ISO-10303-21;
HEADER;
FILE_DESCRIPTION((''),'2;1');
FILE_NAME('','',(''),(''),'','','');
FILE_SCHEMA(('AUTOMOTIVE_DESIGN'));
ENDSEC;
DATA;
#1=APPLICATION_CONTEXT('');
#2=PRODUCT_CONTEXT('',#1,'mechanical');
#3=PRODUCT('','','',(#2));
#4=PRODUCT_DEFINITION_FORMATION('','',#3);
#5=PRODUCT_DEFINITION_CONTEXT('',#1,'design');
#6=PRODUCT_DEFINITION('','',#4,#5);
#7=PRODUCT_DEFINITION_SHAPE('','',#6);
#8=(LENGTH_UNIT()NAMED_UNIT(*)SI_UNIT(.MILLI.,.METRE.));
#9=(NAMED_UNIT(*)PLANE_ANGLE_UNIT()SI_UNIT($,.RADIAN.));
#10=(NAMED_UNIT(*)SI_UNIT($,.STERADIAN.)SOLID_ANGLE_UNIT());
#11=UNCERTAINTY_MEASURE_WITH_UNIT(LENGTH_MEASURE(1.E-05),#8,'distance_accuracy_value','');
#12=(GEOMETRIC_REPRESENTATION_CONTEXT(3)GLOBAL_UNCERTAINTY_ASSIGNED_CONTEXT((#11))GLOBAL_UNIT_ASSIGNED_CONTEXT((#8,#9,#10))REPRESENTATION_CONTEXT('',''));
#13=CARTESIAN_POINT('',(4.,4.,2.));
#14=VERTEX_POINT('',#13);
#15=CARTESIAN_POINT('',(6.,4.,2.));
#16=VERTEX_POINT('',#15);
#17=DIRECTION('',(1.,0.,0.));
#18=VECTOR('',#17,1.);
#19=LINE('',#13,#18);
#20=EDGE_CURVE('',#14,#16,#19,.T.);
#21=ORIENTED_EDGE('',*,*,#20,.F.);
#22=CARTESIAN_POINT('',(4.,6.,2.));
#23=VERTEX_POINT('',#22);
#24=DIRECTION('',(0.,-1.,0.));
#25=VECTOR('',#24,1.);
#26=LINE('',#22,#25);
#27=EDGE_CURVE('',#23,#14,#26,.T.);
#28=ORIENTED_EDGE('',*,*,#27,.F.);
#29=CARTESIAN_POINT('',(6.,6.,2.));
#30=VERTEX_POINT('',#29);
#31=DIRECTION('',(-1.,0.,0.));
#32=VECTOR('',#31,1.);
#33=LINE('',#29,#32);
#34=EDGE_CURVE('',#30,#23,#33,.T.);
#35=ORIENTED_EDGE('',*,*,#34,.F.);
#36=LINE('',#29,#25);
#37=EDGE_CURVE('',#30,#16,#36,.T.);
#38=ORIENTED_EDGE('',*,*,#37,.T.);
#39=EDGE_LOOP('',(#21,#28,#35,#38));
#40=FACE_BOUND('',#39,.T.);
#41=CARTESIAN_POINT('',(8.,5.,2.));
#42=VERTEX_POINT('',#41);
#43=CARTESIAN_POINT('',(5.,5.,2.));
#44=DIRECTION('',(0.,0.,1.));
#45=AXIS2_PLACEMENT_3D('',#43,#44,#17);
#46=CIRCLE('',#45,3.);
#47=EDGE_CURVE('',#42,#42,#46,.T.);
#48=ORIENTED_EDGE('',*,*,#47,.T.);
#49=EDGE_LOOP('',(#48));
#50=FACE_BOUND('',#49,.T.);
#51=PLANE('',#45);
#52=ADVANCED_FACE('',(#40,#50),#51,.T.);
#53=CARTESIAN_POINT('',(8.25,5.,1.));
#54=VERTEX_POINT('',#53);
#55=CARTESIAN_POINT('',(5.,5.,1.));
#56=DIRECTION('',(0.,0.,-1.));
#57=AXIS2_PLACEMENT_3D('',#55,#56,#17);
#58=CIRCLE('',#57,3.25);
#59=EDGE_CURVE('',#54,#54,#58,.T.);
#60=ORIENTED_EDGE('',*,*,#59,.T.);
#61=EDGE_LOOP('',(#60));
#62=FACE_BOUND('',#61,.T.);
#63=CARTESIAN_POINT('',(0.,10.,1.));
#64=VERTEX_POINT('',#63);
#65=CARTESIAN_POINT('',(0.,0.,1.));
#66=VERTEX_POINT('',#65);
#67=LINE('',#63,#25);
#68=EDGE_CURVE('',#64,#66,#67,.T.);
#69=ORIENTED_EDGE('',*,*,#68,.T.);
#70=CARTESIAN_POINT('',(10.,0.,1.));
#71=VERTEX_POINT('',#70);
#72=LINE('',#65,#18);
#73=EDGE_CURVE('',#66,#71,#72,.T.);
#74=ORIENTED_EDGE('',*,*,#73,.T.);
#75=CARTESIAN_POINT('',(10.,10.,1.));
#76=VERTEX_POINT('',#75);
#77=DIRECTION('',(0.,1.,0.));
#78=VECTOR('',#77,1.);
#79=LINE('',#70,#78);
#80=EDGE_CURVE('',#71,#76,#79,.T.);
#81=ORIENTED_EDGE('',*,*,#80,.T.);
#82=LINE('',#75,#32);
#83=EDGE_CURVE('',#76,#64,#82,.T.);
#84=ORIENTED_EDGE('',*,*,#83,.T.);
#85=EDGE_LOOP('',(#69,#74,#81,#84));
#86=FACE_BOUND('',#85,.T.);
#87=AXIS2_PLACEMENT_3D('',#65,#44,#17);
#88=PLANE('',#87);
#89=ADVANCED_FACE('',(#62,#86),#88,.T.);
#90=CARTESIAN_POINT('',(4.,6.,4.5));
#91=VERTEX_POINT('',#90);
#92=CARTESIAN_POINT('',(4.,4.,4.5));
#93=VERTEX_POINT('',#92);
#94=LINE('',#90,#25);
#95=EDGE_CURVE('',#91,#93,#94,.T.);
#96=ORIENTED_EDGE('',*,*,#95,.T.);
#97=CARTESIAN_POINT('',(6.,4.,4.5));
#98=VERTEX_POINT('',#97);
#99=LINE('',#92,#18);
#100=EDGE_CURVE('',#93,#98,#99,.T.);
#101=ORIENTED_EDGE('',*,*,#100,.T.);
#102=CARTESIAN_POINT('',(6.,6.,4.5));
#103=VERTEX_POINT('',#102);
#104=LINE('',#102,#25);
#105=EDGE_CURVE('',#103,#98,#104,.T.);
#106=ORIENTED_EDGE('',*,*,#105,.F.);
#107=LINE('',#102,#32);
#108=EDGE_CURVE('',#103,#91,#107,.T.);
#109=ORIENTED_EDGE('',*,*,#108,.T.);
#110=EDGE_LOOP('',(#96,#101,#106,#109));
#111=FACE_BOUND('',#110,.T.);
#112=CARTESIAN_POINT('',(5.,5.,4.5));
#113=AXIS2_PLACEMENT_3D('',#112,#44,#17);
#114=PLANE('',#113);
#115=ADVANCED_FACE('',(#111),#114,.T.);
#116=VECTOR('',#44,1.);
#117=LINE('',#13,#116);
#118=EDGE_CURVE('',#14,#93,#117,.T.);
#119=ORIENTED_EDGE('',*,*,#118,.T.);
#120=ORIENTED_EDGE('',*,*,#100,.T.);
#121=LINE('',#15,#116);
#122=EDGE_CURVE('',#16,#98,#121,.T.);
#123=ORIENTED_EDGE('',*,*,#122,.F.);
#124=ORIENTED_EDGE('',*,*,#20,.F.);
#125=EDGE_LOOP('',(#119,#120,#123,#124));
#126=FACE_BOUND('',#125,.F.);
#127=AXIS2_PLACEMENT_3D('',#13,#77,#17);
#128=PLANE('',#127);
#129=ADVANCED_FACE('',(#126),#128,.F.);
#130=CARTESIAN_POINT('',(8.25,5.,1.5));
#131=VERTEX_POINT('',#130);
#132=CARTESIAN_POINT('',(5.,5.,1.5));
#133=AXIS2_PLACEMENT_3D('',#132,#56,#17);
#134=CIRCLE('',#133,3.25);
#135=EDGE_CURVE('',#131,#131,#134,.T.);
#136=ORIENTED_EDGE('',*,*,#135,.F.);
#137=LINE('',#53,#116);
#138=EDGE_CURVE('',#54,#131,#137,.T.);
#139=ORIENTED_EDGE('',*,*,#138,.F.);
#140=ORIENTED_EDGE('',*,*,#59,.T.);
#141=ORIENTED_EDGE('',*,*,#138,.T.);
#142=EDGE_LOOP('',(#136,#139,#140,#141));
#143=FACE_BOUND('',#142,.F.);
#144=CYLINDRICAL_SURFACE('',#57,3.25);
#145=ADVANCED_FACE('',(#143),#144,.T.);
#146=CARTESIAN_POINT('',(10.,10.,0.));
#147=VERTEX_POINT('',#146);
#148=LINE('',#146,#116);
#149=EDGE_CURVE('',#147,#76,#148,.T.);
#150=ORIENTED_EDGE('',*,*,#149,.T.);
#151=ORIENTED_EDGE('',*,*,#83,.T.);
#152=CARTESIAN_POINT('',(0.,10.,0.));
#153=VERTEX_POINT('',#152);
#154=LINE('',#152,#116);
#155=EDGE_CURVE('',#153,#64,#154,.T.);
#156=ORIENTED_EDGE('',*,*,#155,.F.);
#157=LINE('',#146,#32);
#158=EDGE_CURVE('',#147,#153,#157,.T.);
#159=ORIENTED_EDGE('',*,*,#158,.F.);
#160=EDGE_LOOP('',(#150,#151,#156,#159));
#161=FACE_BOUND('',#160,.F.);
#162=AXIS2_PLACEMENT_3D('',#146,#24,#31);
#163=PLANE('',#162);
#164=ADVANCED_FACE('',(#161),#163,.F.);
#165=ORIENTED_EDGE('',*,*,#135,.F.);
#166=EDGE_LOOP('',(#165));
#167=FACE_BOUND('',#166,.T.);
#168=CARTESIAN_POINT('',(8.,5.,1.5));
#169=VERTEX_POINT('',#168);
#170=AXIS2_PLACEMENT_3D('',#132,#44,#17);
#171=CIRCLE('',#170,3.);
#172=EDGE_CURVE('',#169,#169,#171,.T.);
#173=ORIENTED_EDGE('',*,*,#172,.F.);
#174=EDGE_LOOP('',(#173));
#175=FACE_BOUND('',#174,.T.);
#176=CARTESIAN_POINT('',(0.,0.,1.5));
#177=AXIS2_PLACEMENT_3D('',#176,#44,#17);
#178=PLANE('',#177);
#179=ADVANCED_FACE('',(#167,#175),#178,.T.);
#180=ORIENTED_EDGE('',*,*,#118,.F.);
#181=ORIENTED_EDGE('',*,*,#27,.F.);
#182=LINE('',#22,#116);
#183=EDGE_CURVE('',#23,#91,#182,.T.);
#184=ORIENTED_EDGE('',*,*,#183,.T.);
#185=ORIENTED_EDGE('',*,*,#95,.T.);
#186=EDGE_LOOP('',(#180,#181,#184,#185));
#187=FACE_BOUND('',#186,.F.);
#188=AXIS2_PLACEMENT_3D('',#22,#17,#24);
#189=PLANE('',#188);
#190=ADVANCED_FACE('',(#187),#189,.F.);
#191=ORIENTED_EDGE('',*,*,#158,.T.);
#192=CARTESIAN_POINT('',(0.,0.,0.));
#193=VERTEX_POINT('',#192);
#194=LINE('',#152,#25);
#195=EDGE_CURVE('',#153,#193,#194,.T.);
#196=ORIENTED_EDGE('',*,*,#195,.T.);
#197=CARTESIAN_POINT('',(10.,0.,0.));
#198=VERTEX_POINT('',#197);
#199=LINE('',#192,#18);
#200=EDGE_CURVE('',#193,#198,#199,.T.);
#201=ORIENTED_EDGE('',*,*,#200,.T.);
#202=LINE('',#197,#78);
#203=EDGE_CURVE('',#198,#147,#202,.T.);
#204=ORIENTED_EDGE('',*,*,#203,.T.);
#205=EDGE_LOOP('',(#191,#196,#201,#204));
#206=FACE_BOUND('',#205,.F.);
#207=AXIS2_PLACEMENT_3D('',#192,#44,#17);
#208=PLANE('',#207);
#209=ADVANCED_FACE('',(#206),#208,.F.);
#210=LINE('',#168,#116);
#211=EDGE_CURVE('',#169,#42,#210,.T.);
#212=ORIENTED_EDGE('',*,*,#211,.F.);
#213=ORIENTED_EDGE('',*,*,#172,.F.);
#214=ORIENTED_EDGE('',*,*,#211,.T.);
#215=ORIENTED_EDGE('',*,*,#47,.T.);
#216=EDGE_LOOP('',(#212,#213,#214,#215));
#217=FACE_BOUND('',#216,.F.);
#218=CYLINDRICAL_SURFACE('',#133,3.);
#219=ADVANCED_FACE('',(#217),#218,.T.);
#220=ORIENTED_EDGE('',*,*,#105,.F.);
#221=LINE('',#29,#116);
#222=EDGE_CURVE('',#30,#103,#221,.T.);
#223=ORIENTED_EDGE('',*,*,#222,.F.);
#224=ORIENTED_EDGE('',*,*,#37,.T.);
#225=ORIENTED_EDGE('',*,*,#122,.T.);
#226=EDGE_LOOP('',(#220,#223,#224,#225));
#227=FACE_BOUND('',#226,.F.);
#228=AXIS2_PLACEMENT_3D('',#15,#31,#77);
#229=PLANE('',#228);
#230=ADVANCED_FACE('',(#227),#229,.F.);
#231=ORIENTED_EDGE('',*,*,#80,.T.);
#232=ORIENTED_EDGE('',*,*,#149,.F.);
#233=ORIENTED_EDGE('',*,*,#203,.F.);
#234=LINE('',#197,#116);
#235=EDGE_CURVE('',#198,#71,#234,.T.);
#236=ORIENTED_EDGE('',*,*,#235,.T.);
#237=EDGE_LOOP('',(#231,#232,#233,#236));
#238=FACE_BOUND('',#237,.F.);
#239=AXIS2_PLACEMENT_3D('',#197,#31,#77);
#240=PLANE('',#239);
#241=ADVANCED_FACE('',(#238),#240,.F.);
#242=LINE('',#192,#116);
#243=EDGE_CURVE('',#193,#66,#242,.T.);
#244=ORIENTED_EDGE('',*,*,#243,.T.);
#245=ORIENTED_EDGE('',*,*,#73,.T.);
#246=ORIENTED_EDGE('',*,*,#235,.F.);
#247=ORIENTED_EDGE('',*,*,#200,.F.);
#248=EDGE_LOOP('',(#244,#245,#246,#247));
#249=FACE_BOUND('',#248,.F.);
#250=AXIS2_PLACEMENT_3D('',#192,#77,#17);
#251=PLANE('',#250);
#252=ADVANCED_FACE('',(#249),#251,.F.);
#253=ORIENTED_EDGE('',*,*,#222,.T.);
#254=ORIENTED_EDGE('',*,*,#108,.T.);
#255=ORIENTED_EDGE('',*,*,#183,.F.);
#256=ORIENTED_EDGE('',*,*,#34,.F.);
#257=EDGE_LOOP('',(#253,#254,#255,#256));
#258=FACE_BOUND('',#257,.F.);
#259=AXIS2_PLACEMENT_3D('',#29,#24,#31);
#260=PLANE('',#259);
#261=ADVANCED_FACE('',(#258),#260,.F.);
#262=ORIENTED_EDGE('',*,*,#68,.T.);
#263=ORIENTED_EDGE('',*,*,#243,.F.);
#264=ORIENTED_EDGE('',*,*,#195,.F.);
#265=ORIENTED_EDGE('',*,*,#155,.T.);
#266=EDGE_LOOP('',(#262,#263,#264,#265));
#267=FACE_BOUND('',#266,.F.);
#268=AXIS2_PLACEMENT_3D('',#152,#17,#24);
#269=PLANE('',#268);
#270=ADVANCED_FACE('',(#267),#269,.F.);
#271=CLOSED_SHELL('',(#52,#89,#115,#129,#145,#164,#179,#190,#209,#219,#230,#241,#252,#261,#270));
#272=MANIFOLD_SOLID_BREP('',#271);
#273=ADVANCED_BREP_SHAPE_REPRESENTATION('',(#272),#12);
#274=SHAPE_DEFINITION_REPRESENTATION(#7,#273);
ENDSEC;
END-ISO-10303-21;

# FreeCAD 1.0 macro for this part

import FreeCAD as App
import Part
import Sketcher

V = App.Vector
Q = App.Units.Quantity


def add_polygon(sketch, points):
    """Adds a closed chain of lines whose ends are joined by coincident constraints."""
    first, n = sketch.GeometryCount, len(points)
    for a, b in zip(points, points[1:] + points[:1]):
        sketch.addGeometry(Part.LineSegment(App.Vector(*a, 0), App.Vector(*b, 0)), False)
    for i in range(n):
        sketch.addConstraint(Sketcher.Constraint("Coincident", first + i, 2, first + (i + 1) % n, 1))

doc = App.newDocument("Part")
body = doc.addObject("PartDesign::Body", "Body")

# Sketch on XY plane
sketch1 = body.newObject("Sketcher::SketchObject", "Sketch")
sketch1.AttachmentSupport = (doc.getObject("XY_Plane"), [""])
sketch1.MapMode = "FlatFace"
add_polygon(sketch1, [(0, 10), (0, 0), (10, 0), (10, 10)])  # lines 0-3
sketch1.addConstraint([
    Sketcher.Constraint("Vertical", 0),
    Sketcher.Constraint("Horizontal", 1),
    Sketcher.Constraint("Vertical", 2),
    Sketcher.Constraint("Horizontal", 3),
    Sketcher.Constraint("Coincident", 0, 2, -1, 1),
    Sketcher.Constraint("Equal", 3, 0),
    Sketcher.Constraint("DistanceX", 1, 1, 1, 2, Q("10 mm")),
])
pad1 = body.newObject("PartDesign::Pad", "Pad")
pad1.Profile = sketch1
pad1.Length = 1

# Sketch on XY plane
sketch2 = body.newObject("Sketcher::SketchObject", "Sketch001")
sketch2.AttachmentSupport = (doc.getObject("XY_Plane"), [""])
sketch2.MapMode = "FlatFace"
sketch2.AttachmentOffset = App.Placement(V(0, 0, 1), App.Rotation())
sketch2.addGeometry(Part.Circle(V(5, 5, 0), V(0, 0, 1), 3.2), False)
sketch2.addConstraint([
    Sketcher.Constraint("Diameter", 0, Q("6.5 mm")),
    Sketcher.Constraint("DistanceX", -1, 1, 0, 3, Q("5 mm")),
    Sketcher.Constraint("DistanceY", -1, 1, 0, 3, Q("5 mm")),
])
pad2 = body.newObject("PartDesign::Pad", "Pad001")
pad2.Profile = sketch2
pad2.Length = 0.5

# Sketch on XY plane
sketch3 = body.newObject("Sketcher::SketchObject", "Sketch002")
sketch3.AttachmentSupport = (doc.getObject("XY_Plane"), [""])
sketch3.MapMode = "FlatFace"
sketch3.AttachmentOffset = App.Placement(V(0, 0, 1.5), App.Rotation())
sketch3.addGeometry(Part.Circle(V(5, 5, 0), V(0, 0, 1), 3), False)
sketch3.addConstraint([
    Sketcher.Constraint("Diameter", 0, Q("6 mm")),
    Sketcher.Constraint("DistanceX", -1, 1, 0, 3, Q("5 mm")),
    Sketcher.Constraint("DistanceY", -1, 1, 0, 3, Q("5 mm")),
])
pad3 = body.newObject("PartDesign::Pad", "Pad002")
pad3.Profile = sketch3
pad3.Length = 0.5

# Sketch on XY plane
sketch4 = body.newObject("Sketcher::SketchObject", "Sketch003")
sketch4.AttachmentSupport = (doc.getObject("XY_Plane"), [""])
sketch4.MapMode = "FlatFace"
sketch4.AttachmentOffset = App.Placement(V(0, 0, 2), App.Rotation())
add_polygon(sketch4, [(6, 4), (6, 6), (4, 6), (4, 4)])  # lines 0-3
sketch4.addConstraint([
    Sketcher.Constraint("Vertical", 0),
    Sketcher.Constraint("Horizontal", 1),
    Sketcher.Constraint("Vertical", 2),
    Sketcher.Constraint("Horizontal", 3),
    Sketcher.Constraint("Equal", 3, 0),
    Sketcher.Constraint("DistanceX", 1, 2, 1, 1, Q("2 mm")),
    Sketcher.Constraint("DistanceX", -1, 1, 0, 2, Q("6 mm")),
    Sketcher.Constraint("DistanceY", -1, 1, 0, 2, Q("6 mm")),
])
pad4 = body.newObject("PartDesign::Pad", "Pad003")
pad4.Profile = sketch4
pad4.Length = 2.5

doc.recompute()
